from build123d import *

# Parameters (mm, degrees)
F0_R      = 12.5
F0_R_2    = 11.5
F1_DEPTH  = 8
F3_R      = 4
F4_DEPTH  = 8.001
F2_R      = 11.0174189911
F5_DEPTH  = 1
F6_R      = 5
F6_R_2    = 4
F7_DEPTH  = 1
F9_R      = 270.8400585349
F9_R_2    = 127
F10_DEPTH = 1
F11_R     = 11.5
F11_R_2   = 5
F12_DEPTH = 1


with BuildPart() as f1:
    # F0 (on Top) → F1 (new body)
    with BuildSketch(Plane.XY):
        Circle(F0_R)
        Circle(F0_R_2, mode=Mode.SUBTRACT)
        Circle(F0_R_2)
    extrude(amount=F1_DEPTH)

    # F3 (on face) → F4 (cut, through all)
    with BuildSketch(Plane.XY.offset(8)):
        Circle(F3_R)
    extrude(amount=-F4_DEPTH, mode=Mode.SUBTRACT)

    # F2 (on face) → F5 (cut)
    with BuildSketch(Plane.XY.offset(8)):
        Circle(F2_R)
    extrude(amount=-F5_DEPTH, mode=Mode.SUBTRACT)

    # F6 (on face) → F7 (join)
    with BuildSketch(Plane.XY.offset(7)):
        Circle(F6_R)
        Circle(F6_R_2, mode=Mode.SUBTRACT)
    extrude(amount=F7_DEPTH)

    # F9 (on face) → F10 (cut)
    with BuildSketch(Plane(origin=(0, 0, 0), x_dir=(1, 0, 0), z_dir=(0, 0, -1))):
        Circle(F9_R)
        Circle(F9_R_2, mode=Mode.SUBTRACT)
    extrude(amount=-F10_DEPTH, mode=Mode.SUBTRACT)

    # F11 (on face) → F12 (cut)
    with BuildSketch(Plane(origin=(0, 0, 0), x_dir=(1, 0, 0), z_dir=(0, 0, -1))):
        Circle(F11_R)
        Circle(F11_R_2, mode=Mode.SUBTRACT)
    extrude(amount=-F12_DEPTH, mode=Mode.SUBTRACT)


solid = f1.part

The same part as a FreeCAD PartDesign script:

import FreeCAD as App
import Part
import Sketcher
from FreeCAD import Vector
Q = App.Units.Quantity

doc = App.newDocument("Part")
body = doc.addObject("PartDesign::Body", "Body")

# Sketch on XY plane
sketch1 = body.newObject("Sketcher::SketchObject", "Sketch")
sketch1.AttachmentSupport = (doc.getObject("XY_Plane"), [""])
sketch1.MapMode = "FlatFace"
sketch1.addGeometry(Part.Circle(Vector(0, 0, 0), Vector(0, 0, 1), 12.5), False)
sketch1.addConstraint(Sketcher.Constraint("Coincident", 0, 3, -1, 1))
sketch1.addConstraint(Sketcher.Constraint("Diameter", 0, Q("25 mm")))
pad1 = body.newObject("PartDesign::Pad", "Pad")
pad1.Profile = sketch1
pad1.Length = 8

# Sketch on XY plane
sketch2 = body.newObject("Sketcher::SketchObject", "Sketch001")
sketch2.AttachmentSupport = (doc.getObject("XY_Plane"), [""])
sketch2.MapMode = "FlatFace"
sketch2.AttachmentOffset = App.Placement(Vector(0, 0, 8), App.Rotation())
sketch2.addGeometry(Part.Circle(Vector(0, 0, 0), Vector(0, 0, 1), 4), False)
sketch2.addConstraint(Sketcher.Constraint("Coincident", 0, 3, -1, 1))
sketch2.addConstraint(Sketcher.Constraint("Diameter", 0, Q("8 mm")))
pocket1 = body.newObject("PartDesign::Pocket", "Pocket")
pocket1.Profile = sketch2
pocket1.Type = "ThroughAll"

# Sketch on XY plane
sketch3 = body.newObject("Sketcher::SketchObject", "Sketch002")
sketch3.AttachmentSupport = (doc.getObject("XY_Plane"), [""])
sketch3.MapMode = "FlatFace"
sketch3.AttachmentOffset = App.Placement(Vector(0, 0, 8), App.Rotation())
sketch3.addGeometry(Part.Circle(Vector(0, 0, 0), Vector(0, 0, 1), 11.017419), False)
sketch3.addConstraint(Sketcher.Constraint("Coincident", 0, 3, -1, 1))
sketch3.addConstraint(Sketcher.Constraint("Diameter", 0, Q("22.034838 mm")))
pocket2 = body.newObject("PartDesign::Pocket", "Pocket001")
pocket2.Profile = sketch3
pocket2.Length = 1

# Sketch on XY plane
sketch4 = body.newObject("Sketcher::SketchObject", "Sketch003")
sketch4.AttachmentSupport = (doc.getObject("XY_Plane"), [""])
sketch4.MapMode = "FlatFace"
sketch4.AttachmentOffset = App.Placement(Vector(0, 0, 7), App.Rotation())
sketch4.addGeometry(Part.Circle(Vector(0, 0, 0), Vector(0, 0, 1), 5), False)
sketch4.addGeometry(Part.Circle(Vector(0, 0, 0), Vector(0, 0, 1), 4), False)
sketch4.addConstraint(Sketcher.Constraint("Coincident", 0, 3, -1, 1))
sketch4.addConstraint(Sketcher.Constraint("Coincident", 1, 3, -1, 1))
sketch4.addConstraint(Sketcher.Constraint("Diameter", 0, Q("10 mm")))
sketch4.addConstraint(Sketcher.Constraint("Diameter", 1, Q("8 mm")))
pad2 = body.newObject("PartDesign::Pad", "Pad001")
pad2.Profile = sketch4
pad2.Length = 1

# Sketch on XY plane
sketch5 = body.newObject("Sketcher::SketchObject", "Sketch004")
sketch5.AttachmentSupport = (doc.getObject("XY_Plane"), [""])
sketch5.MapMode = "FlatFace"
sketch5.addGeometry(Part.Circle(Vector(0, 0, 0), Vector(0, 0, 1), 270.840059), False)
sketch5.addGeometry(Part.Circle(Vector(0, 0, 0), Vector(0, 0, 1), 127), False)
sketch5.addConstraint(Sketcher.Constraint("Coincident", 0, 3, -1, 1))
sketch5.addConstraint(Sketcher.Constraint("Coincident", 1, 3, -1, 1))
sketch5.addConstraint(Sketcher.Constraint("Diameter", 1, Q("254 mm")))
sketch5.addConstraint(Sketcher.Constraint("Diameter", 0, Q("541.680117 mm")))
pocket3 = body.newObject("PartDesign::Pocket", "Pocket002")
pocket3.Profile = sketch5
pocket3.Length = 1
pocket3.Reversed = True

# Sketch on XY plane
sketch6 = body.newObject("Sketcher::SketchObject", "Sketch005")
sketch6.AttachmentSupport = (doc.getObject("XY_Plane"), [""])
sketch6.MapMode = "FlatFace"
sketch6.addGeometry(Part.Circle(Vector(0, 0, 0), Vector(0, 0, 1), 11.5), False)
sketch6.addGeometry(Part.Circle(Vector(0, 0, 0), Vector(0, 0, 1), 5), False)
sketch6.addConstraint(Sketcher.Constraint("Coincident", 0, 3, -1, 1))
sketch6.addConstraint(Sketcher.Constraint("Coincident", 1, 3, -1, 1))
sketch6.addConstraint(Sketcher.Constraint("Diameter", 0, Q("23 mm")))
sketch6.addConstraint(Sketcher.Constraint("Diameter", 1, Q("10 mm")))
pocket4 = body.newObject("PartDesign::Pocket", "Pocket003")
pocket4.Profile = sketch6
pocket4.Length = 1
pocket4.Reversed = True

doc.recompute()
